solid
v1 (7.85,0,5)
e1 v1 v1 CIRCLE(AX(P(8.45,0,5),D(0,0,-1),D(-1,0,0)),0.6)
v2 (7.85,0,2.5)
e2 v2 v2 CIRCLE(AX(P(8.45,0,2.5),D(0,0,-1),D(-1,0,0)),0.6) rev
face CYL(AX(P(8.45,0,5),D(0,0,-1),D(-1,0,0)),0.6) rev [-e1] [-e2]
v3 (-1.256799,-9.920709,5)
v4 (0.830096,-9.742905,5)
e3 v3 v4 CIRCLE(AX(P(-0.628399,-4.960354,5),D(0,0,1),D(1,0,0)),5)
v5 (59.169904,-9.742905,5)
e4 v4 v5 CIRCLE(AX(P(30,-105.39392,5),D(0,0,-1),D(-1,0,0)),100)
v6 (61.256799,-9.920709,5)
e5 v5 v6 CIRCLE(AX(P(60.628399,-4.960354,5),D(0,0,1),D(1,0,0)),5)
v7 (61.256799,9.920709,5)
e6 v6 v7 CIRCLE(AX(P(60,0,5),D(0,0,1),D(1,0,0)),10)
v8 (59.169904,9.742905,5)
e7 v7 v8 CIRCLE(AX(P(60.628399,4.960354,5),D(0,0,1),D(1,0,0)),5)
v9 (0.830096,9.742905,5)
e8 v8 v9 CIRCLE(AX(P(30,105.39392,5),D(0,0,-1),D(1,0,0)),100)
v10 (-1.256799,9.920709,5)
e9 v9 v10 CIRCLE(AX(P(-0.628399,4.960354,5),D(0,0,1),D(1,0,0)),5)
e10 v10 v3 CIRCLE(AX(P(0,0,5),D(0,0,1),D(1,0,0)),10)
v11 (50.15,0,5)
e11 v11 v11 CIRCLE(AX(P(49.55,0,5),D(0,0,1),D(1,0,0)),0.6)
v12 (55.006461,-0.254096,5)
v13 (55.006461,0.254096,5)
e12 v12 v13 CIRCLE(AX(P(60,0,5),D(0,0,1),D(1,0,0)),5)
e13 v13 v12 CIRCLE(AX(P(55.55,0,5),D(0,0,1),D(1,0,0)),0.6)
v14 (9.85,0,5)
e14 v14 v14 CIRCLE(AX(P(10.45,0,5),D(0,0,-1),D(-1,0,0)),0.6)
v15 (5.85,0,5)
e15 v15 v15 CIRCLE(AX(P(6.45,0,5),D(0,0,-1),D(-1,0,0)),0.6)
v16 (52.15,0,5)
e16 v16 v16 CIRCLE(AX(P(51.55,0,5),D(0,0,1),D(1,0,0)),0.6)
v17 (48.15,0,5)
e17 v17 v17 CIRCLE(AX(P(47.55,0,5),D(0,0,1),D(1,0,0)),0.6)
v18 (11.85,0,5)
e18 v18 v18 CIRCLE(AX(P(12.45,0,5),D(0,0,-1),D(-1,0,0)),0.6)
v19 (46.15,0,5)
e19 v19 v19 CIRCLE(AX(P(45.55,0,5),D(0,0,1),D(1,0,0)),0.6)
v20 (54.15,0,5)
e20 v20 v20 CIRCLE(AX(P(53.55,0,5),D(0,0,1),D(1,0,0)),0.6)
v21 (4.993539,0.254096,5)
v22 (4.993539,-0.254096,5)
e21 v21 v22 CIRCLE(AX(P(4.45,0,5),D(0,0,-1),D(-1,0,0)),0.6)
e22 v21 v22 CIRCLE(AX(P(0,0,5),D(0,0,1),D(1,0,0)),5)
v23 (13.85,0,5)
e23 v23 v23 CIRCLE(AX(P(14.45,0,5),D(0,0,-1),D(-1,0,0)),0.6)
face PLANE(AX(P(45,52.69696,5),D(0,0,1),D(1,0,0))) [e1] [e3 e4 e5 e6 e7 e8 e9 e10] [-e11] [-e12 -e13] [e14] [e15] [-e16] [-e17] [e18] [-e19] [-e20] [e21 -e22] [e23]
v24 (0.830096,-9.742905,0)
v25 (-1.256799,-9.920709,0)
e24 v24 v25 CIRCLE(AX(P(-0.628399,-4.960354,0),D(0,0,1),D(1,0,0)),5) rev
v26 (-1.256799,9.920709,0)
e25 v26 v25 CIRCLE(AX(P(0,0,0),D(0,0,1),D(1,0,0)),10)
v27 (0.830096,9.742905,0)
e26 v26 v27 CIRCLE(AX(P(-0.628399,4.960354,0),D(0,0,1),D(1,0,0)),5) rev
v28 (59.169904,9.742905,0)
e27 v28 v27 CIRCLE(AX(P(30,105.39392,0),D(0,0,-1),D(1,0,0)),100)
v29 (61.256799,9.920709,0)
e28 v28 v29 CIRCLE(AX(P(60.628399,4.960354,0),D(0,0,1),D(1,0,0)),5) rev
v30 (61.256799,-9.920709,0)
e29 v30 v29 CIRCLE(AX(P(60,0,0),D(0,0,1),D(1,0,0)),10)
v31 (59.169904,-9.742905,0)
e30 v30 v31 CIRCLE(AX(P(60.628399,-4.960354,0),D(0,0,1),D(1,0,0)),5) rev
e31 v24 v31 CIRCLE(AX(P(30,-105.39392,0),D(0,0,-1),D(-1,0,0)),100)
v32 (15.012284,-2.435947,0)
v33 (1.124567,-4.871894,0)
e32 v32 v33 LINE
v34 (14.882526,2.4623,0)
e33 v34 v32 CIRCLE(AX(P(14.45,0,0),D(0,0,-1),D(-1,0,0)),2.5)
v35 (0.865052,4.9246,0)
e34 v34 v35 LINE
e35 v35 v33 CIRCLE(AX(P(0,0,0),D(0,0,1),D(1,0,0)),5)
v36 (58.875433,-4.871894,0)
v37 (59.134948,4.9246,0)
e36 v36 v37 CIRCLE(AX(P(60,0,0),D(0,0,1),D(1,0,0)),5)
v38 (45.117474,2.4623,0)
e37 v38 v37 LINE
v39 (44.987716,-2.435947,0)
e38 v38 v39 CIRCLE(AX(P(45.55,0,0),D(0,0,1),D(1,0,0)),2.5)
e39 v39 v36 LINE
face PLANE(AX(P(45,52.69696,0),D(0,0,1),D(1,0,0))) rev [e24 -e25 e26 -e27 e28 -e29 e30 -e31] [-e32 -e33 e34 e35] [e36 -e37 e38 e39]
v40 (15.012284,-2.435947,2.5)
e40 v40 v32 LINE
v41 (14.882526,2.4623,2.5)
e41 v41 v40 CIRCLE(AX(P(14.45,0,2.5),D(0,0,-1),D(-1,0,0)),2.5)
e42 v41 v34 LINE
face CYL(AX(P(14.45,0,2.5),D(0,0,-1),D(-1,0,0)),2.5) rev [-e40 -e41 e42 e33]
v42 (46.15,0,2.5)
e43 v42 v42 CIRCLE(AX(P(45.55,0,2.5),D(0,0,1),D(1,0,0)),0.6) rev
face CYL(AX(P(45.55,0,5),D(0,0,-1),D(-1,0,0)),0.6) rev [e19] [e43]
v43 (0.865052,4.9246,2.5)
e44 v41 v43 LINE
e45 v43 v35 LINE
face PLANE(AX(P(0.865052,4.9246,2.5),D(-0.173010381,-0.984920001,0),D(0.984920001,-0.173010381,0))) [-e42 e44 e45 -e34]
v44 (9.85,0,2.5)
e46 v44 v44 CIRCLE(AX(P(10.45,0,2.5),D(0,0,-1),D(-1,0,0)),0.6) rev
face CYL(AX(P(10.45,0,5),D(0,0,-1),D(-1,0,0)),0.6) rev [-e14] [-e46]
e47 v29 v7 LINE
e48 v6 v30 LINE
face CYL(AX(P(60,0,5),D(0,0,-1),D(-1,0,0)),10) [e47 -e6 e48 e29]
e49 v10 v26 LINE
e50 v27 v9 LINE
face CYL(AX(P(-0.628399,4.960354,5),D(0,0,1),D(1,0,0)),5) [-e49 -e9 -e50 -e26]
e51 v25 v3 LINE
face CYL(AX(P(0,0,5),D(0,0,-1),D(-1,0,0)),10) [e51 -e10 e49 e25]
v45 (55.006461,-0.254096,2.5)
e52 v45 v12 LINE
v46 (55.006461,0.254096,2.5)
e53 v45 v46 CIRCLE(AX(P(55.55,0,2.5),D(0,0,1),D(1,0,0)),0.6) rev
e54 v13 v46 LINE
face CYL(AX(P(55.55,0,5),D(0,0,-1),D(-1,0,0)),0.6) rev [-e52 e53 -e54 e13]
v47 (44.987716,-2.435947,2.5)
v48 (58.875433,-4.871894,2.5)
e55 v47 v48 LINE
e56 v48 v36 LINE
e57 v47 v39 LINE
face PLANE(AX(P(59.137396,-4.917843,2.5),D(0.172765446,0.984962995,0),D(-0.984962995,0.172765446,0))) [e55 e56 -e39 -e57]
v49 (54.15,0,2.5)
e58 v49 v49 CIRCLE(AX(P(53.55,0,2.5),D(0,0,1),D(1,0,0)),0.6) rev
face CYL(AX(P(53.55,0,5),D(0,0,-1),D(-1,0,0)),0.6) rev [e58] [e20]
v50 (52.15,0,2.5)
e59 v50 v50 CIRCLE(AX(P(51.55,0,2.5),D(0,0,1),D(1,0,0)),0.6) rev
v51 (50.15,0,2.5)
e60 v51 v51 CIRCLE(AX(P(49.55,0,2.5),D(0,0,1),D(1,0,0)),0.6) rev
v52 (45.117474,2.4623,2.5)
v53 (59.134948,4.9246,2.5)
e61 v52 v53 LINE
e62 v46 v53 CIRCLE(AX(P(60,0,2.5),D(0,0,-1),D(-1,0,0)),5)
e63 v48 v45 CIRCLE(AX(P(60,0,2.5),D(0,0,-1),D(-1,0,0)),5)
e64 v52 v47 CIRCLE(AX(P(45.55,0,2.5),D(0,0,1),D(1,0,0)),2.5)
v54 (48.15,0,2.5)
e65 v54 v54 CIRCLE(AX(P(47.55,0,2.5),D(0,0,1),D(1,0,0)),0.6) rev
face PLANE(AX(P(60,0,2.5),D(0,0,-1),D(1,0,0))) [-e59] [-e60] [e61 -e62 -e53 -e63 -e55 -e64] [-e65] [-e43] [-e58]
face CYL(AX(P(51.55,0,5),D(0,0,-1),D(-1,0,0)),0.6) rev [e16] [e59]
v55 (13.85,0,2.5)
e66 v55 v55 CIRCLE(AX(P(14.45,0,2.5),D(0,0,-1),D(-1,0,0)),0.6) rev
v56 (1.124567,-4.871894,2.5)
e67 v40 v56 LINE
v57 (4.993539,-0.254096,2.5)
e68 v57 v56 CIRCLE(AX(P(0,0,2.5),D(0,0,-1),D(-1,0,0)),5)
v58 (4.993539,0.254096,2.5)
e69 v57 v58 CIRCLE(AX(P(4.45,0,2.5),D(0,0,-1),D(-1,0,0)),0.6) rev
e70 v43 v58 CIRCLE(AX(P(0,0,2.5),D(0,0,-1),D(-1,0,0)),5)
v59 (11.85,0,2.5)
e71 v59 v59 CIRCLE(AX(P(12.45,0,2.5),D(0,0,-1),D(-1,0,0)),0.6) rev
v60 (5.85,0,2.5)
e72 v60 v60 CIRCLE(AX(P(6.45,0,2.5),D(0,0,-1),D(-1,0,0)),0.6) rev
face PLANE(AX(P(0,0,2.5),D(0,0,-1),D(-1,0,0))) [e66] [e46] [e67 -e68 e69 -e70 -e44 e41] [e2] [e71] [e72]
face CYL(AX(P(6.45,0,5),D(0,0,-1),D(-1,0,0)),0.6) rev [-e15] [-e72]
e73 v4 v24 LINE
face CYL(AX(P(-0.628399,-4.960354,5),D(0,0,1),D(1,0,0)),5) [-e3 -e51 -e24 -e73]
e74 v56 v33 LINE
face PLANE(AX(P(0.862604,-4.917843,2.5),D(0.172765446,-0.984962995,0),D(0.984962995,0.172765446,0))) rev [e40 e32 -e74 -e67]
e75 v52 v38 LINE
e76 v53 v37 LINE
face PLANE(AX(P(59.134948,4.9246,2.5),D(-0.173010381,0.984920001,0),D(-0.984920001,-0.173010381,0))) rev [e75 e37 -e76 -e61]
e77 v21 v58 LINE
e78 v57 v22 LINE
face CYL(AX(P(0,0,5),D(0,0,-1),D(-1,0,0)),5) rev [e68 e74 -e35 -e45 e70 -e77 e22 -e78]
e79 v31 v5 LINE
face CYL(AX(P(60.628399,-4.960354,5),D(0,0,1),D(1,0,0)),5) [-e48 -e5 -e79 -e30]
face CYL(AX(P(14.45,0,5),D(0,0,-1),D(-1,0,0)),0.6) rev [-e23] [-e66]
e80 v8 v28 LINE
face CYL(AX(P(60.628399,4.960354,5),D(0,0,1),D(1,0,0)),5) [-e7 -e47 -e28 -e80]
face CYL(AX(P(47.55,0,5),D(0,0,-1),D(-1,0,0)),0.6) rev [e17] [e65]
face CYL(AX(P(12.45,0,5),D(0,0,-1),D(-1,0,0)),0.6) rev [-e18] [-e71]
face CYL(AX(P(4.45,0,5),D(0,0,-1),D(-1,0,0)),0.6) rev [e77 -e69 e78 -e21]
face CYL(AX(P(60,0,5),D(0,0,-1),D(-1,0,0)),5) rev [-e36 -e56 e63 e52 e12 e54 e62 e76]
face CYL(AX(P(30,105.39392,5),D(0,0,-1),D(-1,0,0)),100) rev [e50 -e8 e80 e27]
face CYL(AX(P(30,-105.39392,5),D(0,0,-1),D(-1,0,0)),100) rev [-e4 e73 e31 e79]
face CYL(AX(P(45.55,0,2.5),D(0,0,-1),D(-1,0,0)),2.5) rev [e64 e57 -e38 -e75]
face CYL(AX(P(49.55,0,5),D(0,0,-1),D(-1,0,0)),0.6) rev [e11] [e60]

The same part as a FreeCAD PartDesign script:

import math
import FreeCAD as App
import Part
import Sketcher
Q = App.Units.Quantity


def edges_at(feature, points):
    """Names of the edges that pass closest to the given points."""
    edges = feature.Shape.Edges
    near = lambda p: min(range(len(edges)), key=lambda i: edges[i].distToShape(Part.Vertex(*p))[0])
    return sorted({f"Edge{near(p) + 1}" for p in points})

doc = App.newDocument("Part")
body = doc.addObject("PartDesign::Body", "Body")

# Sketch on XY plane
sketch1 = doc.addObject("Sketcher::SketchObject", "Sketch")
body.addObject(sketch1)
sketch1.AttachmentSupport = (doc.XY_Plane, [""])
sketch1.MapMode = "FlatFace"
sketch1.addGeometry([
    Part.ArcOfCircle(Part.Circle(App.Vector(0, 0, 0), App.Vector(0, 0, 1), 10), math.radians(90), math.radians(270)),  # 0
    Part.ArcOfCircle(Part.Circle(App.Vector(30, -105, 0), App.Vector(0, 0, 1), 100), math.radians(73), math.radians(107)),  # 1
    Part.ArcOfCircle(Part.Circle(App.Vector(60, 0, 0), App.Vector(0, 0, 1), 10), math.radians(-90), math.radians(90)),  # 2
    Part.ArcOfCircle(Part.Circle(App.Vector(30, 105, 0), App.Vector(0, 0, 1), 100), math.radians(-107), math.radians(-73)),  # 3
    Part.Circle(App.Vector(0, 0, 0), App.Vector(0, 0, 1), 5),  # 4
    Part.Circle(App.Vector(60, 0, 0), App.Vector(0, 0, 1), 5),  # 5
], False)
sketch1.addConstraint([
    Sketcher.Constraint("Coincident", 0, 2, 1, 2),
    Sketcher.Constraint("Coincident", 1, 1, 2, 1),
    Sketcher.Constraint("Coincident", 2, 2, 3, 2),
    Sketcher.Constraint("Coincident", 3, 1, 0, 1),
    Sketcher.Constraint("Coincident", 0, 3, -1, 1),
    Sketcher.Constraint("Coincident", 4, 3, -1, 1),
    Sketcher.Constraint("Coincident", 5, 3, 2, 3),
    Sketcher.Constraint("Equal", 0, 2),
    Sketcher.Constraint("Equal", 1, 3),
    Sketcher.Constraint("Equal", 4, 5),
    Sketcher.Constraint("Symmetric", 1, 3, 3, 3, -1),
    Sketcher.Constraint("PointOnObject", 2, 3, -1),
    Sketcher.Constraint("PointOnObject", 0, 2, -2),
    Sketcher.Constraint("Vertical", 5, 3, 1, 1),
    Sketcher.Constraint("Diameter", 4, Q("10 mm")),
    Sketcher.Constraint("Radius", 0, Q("10 mm")),
    Sketcher.Constraint("Radius", 1, Q("100 mm")),
    Sketcher.Constraint("DistanceX", -1, 1, 1, 3, Q("30 mm")),
])
pad1 = doc.addObject("PartDesign::Pad", "Pad")
body.addObject(pad1)
pad1.Profile = sketch1
pad1.Length = 5
doc.recompute()

fillet = doc.addObject("PartDesign::Fillet", "Fillet")
body.addObject(fillet)
fillet.Base = (pad1, edges_at(pad1, [
    (60, 10, 2.5),
    (60, -10, 2.5),
    (0, -10, 2.5),
    (0, 10, 2.5),
]))
fillet.Radius = 5

# Sketch on XY plane
sketch2 = doc.addObject("Sketcher::SketchObject", "Sketch001")
body.addObject(sketch2)
sketch2.AttachmentSupport = (doc.XY_Plane, [""])
sketch2.MapMode = "FlatFace"
sketch2.addGeometry([
    Part.Circle(App.Vector(4.5, 0, 0), App.Vector(0, 0, 1), 0.6),  # 0
    Part.Circle(App.Vector(6.5, 0, 0), App.Vector(0, 0, 1), 0.6),  # 1
    Part.Circle(App.Vector(8.4, 0, 0), App.Vector(0, 0, 1), 0.6),  # 2
    Part.Circle(App.Vector(10.4, 0, 0), App.Vector(0, 0, 1), 0.6),  # 3
    Part.Circle(App.Vector(12.4, 0, 0), App.Vector(0, 0, 1), 0.6),  # 4
    Part.Circle(App.Vector(14.4, 0, 0), App.Vector(0, 0, 1), 0.6),  # 5
], False)
sketch2.addConstraint([
    Sketcher.Constraint("Equal", 0, 1),
    Sketcher.Constraint("Equal", 1, 2),
    Sketcher.Constraint("Equal", 2, 3),
    Sketcher.Constraint("Equal", 3, 4),
    Sketcher.Constraint("Equal", 4, 5),
    Sketcher.Constraint("PointOnObject", 0, 3, -1),
    Sketcher.Constraint("PointOnObject", 1, 3, -1),
    Sketcher.Constraint("PointOnObject", 2, 3, -1),
    Sketcher.Constraint("PointOnObject", 3, 3, -1),
    Sketcher.Constraint("PointOnObject", 4, 3, -1),
    Sketcher.Constraint("PointOnObject", 5, 3, -1),
    Sketcher.Constraint("Diameter", 0, Q("1.2 mm")),
    Sketcher.Constraint("DistanceX", 0, 3, 1, 3, Q("2 mm")),
    Sketcher.Constraint("DistanceX", 1, 3, 2, 3, Q("2 mm")),
    Sketcher.Constraint("DistanceX", 2, 3, 3, 3, Q("2 mm")),
    Sketcher.Constraint("DistanceX", 3, 3, 4, 3, Q("2 mm")),
    Sketcher.Constraint("DistanceX", 4, 3, 5, 3, Q("2 mm")),
    Sketcher.Constraint("DistanceX", -1, 1, 0, 3, Q("4.45 mm")),
])
pocket1 = doc.addObject("PartDesign::Pocket", "Pocket")
body.addObject(pocket1)
pocket1.Profile = sketch2
pocket1.Length = 5
pocket1.Reversed = True

# Sketch on XY plane
sketch3 = doc.addObject("Sketcher::SketchObject", "Sketch002")
body.addObject(sketch3)
sketch3.AttachmentSupport = (doc.XY_Plane, [""])
sketch3.MapMode = "FlatFace"
sketch3.addGeometry([
    Part.LineSegment(App.Vector(15, -2.4, 0), App.Vector(1.1, -4.9, 0)),  # 0
    Part.ArcOfCircle(Part.Circle(App.Vector(0, 0, 0), App.Vector(0, 0, 1), 5), math.radians(-77), math.radians(-3)),  # 1
    Part.ArcOfCircle(Part.Circle(App.Vector(4.4, 0, 0), App.Vector(0, 0, 1), 0.6), math.radians(-25), math.radians(25)),  # 2
    Part.ArcOfCircle(Part.Circle(App.Vector(0, 0, 0), App.Vector(0, 0, 1), 5), math.radians(3), math.radians(80)),  # 3
    Part.LineSegment(App.Vector(0.9, 4.9, 0), App.Vector(14.9, 2.5, 0)),  # 4
    Part.ArcOfCircle(Part.Circle(App.Vector(14.5, 0, 0), App.Vector(0, 0, 1), 2.5), math.radians(-77), math.radians(80)),  # 5
    Part.Circle(App.Vector(14.4, 0, 0), App.Vector(0, 0, 1), 0.6),  # 6
    Part.Circle(App.Vector(12.4, 0, 0), App.Vector(0, 0, 1), 0.6),  # 7
    Part.Circle(App.Vector(10.4, 0, 0), App.Vector(0, 0, 1), 0.6),  # 8
    Part.Circle(App.Vector(8.4, 0, 0), App.Vector(0, 0, 1), 0.6),  # 9
    Part.Circle(App.Vector(6.5, 0, 0), App.Vector(0, 0, 1), 0.6),  # 10
], False)
sketch3.addConstraint([
    Sketcher.Constraint("Coincident", 0, 2, 1, 1),
    Sketcher.Constraint("Coincident", 1, 2, 2, 1),
    Sketcher.Constraint("Coincident", 2, 2, 3, 1),
    Sketcher.Constraint("Tangent", 3, 2, 4, 1),
    Sketcher.Constraint("Tangent", 4, 2, 5, 2),
    Sketcher.Constraint("Coincident", 5, 1, 0, 1),
    Sketcher.Constraint("Coincident", 1, 3, -1, 1),
    Sketcher.Constraint("Coincident", 3, 3, -1, 1),
    Sketcher.Constraint("Coincident", 6, 3, 5, 3),
    Sketcher.Constraint("Equal", 1, 3),
    Sketcher.Constraint("Equal", 2, 6),
    Sketcher.Constraint("Equal", 6, 7),
    Sketcher.Constraint("Equal", 7, 8),
    Sketcher.Constraint("Equal", 8, 9),
    Sketcher.Constraint("Equal", 9, 10),
    Sketcher.Constraint("PointOnObject", 2, 3, -1),
    Sketcher.Constraint("PointOnObject", 5, 3, -1),
    Sketcher.Constraint("PointOnObject", 7, 3, -1),
    Sketcher.Constraint("PointOnObject", 8, 3, -1),
    Sketcher.Constraint("PointOnObject", 9, 3, -1),
    Sketcher.Constraint("PointOnObject", 10, 3, -1),
    Sketcher.Constraint("Radius", 1, Q("5 mm")),
    Sketcher.Constraint("Diameter", 6, Q("1.2 mm")),
    Sketcher.Constraint("Radius", 5, Q("2.5 mm")),
    Sketcher.Constraint("DistanceX", 2, 3, 5, 3, Q("10 mm")),
    Sketcher.Constraint("DistanceX", 7, 3, 6, 3, Q("2 mm")),
    Sketcher.Constraint("DistanceX", 8, 3, 7, 3, Q("2 mm")),
    Sketcher.Constraint("DistanceX", 9, 3, 8, 3, Q("2 mm")),
    Sketcher.Constraint("DistanceX", 10, 3, 9, 3, Q("2 mm")),
    Sketcher.Constraint("DistanceX", -1, 1, 2, 3, Q("4.45 mm")),
    Sketcher.Constraint("Distance", 0, Q("14.099734 mm")),
    Sketcher.Constraint("DistanceX", -1, 1, 0, 2, Q("1.124567 mm")),
])
pocket2 = doc.addObject("PartDesign::Pocket", "Pocket001")
body.addObject(pocket2)
pocket2.Profile = sketch3
pocket2.Length = 2.5
pocket2.Reversed = True
doc.recompute()

datumplane = doc.addObject("PartDesign::Plane", "DatumPlane")
body.addObject(datumplane)
datumplane.AttachmentSupport = (doc.YZ_Plane, [""])
datumplane.MapMode = "FlatFace"
datumplane.AttachmentOffset = App.Placement(App.Vector(0, 0, 30), App.Rotation())
mirrored = doc.addObject("PartDesign::Mirrored", "Mirrored")
body.addObject(mirrored)
mirrored.Originals = [pocket1, pocket2]
mirrored.MirrorPlane = (datumplane, [""])
body.Tip = mirrored

doc.recompute()
